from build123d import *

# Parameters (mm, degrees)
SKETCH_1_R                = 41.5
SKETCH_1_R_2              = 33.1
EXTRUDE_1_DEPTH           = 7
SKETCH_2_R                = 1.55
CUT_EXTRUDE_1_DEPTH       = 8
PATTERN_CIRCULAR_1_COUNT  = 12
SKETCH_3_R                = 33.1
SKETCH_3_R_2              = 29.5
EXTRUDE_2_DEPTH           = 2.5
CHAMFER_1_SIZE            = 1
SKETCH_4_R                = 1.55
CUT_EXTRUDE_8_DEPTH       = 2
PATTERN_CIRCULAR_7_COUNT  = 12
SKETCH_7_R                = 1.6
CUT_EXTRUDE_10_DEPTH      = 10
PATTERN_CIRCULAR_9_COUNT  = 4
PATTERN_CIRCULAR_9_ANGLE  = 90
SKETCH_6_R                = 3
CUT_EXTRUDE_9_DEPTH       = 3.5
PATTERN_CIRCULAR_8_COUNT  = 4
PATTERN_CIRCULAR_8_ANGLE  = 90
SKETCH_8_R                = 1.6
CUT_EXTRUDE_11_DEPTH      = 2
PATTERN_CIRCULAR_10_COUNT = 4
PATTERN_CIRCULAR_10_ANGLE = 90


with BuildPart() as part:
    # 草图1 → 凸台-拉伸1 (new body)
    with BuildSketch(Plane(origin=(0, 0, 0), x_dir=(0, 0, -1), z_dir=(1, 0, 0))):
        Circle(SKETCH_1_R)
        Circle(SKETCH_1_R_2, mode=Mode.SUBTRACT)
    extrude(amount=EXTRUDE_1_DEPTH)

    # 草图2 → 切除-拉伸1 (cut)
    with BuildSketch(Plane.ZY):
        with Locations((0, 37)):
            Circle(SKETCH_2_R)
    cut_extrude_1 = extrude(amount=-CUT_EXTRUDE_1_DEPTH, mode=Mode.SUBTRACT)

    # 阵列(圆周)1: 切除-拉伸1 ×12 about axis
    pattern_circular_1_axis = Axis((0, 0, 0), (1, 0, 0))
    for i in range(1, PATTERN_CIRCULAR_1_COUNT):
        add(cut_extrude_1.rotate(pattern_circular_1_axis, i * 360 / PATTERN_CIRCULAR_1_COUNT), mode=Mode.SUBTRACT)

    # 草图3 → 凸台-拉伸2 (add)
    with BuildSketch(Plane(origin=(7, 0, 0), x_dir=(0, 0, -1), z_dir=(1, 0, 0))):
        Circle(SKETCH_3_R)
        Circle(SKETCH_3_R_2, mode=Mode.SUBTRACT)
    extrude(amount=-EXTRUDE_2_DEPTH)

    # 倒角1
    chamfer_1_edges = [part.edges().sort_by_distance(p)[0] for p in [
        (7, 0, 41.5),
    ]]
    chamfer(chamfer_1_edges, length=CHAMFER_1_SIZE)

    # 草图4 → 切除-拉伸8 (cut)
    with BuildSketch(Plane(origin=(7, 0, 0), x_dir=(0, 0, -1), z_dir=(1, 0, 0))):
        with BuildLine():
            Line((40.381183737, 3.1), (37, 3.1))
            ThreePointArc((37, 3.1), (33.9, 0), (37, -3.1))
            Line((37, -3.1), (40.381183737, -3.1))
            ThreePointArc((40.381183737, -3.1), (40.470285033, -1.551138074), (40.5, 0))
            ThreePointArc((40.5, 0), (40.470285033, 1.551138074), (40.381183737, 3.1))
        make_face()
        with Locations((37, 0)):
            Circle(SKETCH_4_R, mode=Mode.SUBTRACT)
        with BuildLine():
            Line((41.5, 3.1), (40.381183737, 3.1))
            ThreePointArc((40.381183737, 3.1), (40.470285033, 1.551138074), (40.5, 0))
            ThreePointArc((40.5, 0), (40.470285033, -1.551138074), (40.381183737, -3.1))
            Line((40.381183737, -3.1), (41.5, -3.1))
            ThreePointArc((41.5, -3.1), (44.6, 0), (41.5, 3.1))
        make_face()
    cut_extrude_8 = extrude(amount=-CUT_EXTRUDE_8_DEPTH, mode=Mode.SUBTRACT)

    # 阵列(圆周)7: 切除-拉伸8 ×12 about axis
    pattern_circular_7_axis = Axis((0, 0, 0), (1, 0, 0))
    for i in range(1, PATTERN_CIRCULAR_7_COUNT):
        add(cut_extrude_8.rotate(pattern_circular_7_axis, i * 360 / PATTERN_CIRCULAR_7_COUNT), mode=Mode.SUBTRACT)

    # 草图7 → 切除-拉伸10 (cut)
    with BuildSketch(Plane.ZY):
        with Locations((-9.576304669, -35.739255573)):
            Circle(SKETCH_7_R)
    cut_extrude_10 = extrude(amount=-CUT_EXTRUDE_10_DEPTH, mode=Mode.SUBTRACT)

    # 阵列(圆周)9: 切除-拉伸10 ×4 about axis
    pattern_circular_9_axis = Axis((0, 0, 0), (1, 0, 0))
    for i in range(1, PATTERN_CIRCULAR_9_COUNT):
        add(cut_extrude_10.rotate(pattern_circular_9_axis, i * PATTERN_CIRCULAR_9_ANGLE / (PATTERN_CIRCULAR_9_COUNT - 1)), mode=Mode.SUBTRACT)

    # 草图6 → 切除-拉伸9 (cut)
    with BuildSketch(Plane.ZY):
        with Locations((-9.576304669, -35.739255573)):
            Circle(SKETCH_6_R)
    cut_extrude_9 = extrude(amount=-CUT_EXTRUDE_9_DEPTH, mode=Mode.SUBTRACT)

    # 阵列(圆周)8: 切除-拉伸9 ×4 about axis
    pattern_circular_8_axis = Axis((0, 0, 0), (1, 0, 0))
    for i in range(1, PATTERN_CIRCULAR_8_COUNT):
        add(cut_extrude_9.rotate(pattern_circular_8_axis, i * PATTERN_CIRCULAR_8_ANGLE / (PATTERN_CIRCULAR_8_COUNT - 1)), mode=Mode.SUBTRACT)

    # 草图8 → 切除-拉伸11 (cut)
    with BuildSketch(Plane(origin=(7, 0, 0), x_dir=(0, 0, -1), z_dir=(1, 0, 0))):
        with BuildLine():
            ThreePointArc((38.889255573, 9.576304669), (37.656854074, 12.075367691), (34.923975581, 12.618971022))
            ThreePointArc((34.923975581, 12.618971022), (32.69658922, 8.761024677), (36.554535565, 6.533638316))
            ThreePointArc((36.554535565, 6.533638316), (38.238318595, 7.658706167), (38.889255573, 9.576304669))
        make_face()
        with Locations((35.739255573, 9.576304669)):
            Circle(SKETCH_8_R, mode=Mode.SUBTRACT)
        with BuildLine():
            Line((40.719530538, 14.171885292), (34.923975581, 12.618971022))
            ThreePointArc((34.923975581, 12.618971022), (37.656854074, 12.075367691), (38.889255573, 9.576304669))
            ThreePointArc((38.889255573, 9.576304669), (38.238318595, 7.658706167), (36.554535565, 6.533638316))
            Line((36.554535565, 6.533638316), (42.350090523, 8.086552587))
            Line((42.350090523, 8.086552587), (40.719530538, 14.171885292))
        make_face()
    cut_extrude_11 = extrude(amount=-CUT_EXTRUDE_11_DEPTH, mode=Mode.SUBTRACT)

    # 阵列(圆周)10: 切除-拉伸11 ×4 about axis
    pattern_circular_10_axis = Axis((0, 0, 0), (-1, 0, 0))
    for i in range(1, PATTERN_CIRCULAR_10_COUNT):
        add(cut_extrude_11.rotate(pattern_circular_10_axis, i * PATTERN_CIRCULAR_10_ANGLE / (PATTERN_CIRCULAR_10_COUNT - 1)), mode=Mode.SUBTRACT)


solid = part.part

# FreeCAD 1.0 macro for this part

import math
import FreeCAD as App
import Part
import Sketcher
Q = App.Units.Quantity


def edges_at(feature, points):
    """Names of the edges that pass closest to the given points."""
    edges = feature.Shape.Edges
    near = lambda p: min(range(len(edges)), key=lambda i: edges[i].distToShape(Part.Vertex(*p))[0])
    return sorted({f"Edge{near(p) + 1}" for p in points})

doc = App.newDocument("Part")
body = doc.addObject("PartDesign::Body", "Body")

# Sketch on YZ plane
sketch1 = body.newObject("Sketcher::SketchObject", "Sketch")
sketch1.AttachmentSupport = (doc.getObject("YZ_Plane"), [""])
sketch1.MapMode = "FlatFace"
sketch1.addGeometry([
    Part.Circle(App.Vector(0, 0, 0), App.Vector(0, 0, 1), 42),
    Part.Circle(App.Vector(0, 0, 0), App.Vector(0, 0, 1), 33),
], False)
sketch1.addConstraint([
    Sketcher.Constraint("Coincident", 0, 3, -1, 1),
    Sketcher.Constraint("Coincident", 1, 3, -1, 1),
    Sketcher.Constraint("Diameter", 0, Q("83 mm")),
    Sketcher.Constraint("Diameter", 1, Q("66.2 mm")),
])
pad1 = body.newObject("PartDesign::Pad", "Pad")
pad1.Profile = sketch1
pad1.Length = 7

# Sketch on YZ plane
sketch2 = body.newObject("Sketcher::SketchObject", "Sketch001")
sketch2.AttachmentSupport = (doc.getObject("YZ_Plane"), [""])
sketch2.MapMode = "FlatFace"
sketch2.addGeometry(Part.Circle(App.Vector(37, 0, 0), App.Vector(0, 0, 1), 1.6), False)
sketch2.addConstraint([
    Sketcher.Constraint("PointOnObject", 0, 3, -1),
    Sketcher.Constraint("Diameter", 0, Q("3.1 mm")),
    Sketcher.Constraint("DistanceX", -1, 1, 0, 3, Q("37 mm")),
])
pocket1 = body.newObject("PartDesign::Pocket", "Pocket")
pocket1.Profile = sketch2
pocket1.Length = 8
pocket1.Reversed = True
doc.recompute()

polarpattern = body.newObject("PartDesign::PolarPattern", "PolarPattern")
polarpattern.Originals = [pocket1]
polarpattern.Axis = (doc.getObject("X_Axis"), [""])
polarpattern.Angle = 360
polarpattern.Occurrences = 12
body.Tip = polarpattern

# Sketch on YZ plane
sketch3 = body.newObject("Sketcher::SketchObject", "Sketch002")
sketch3.AttachmentSupport = (doc.getObject("YZ_Plane"), [""])
sketch3.MapMode = "FlatFace"
sketch3.AttachmentOffset = App.Placement(App.Vector(0, 0, 7), App.Rotation())
sketch3.addGeometry([
    Part.Circle(App.Vector(0, 0, 0), App.Vector(0, 0, 1), 33),
    Part.Circle(App.Vector(0, 0, 0), App.Vector(0, 0, 1), 30),
], False)
sketch3.addConstraint([
    Sketcher.Constraint("Coincident", 0, 3, -1, 1),
    Sketcher.Constraint("Coincident", 1, 3, -1, 1),
    Sketcher.Constraint("Diameter", 1, Q("59 mm")),
    Sketcher.Constraint("Diameter", 0, Q("66.2 mm")),
])
pad2 = body.newObject("PartDesign::Pad", "Pad001")
pad2.Profile = sketch3
pad2.Length = 2.5
pad2.Reversed = True
doc.recompute()

chamfer = body.newObject("PartDesign::Chamfer", "Chamfer")
chamfer.Base = (pad2, edges_at(pad2, [(7, 0, 41.5)]))
chamfer.Size = 1

# Sketch on YZ plane
sketch4 = body.newObject("Sketcher::SketchObject", "Sketch003")
sketch4.AttachmentSupport = (doc.getObject("YZ_Plane"), [""])
sketch4.MapMode = "FlatFace"
sketch4.AttachmentOffset = App.Placement(App.Vector(0, 0, 7), App.Rotation())
sketch4.addGeometry([
    Part.ArcOfCircle(Part.Circle(App.Vector(0, -37, 0), App.Vector(0, 0, 1), 3.1), math.radians(0), math.radians(180)),  # 0
    Part.LineSegment(App.Vector(-3.1, -37, 0), App.Vector(-3.1, -41.5, 0)),  # 1
    Part.ArcOfCircle(Part.Circle(App.Vector(0, -41.5, 0), App.Vector(0, 0, 1), 3.1), math.radians(180), math.radians(360)),  # 2
    Part.LineSegment(App.Vector(3.1, -41.5, 0), App.Vector(3.1, -37, 0)),  # 3
    Part.Circle(App.Vector(0, -37, 0), App.Vector(0, 0, 1), 1.6),  # 4
], False)
sketch4.addConstraint([
    Sketcher.Constraint("Tangent", 0, 2, 1, 1),
    Sketcher.Constraint("Tangent", 1, 2, 2, 1),
    Sketcher.Constraint("Tangent", 2, 2, 3, 1),
    Sketcher.Constraint("Tangent", 3, 2, 0, 1),
    Sketcher.Constraint("Vertical", 1),
    Sketcher.Constraint("Vertical", 3),
    Sketcher.Constraint("Coincident", 4, 3, 0, 3),
    Sketcher.Constraint("PointOnObject", 0, 3, -2),
    Sketcher.Constraint("Diameter", 4, Q("3.1 mm")),
    Sketcher.Constraint("Radius", 0, Q("3.1 mm")),
    Sketcher.Constraint("DistanceY", 1, 2, 1, 1, Q("4.5 mm")),
    Sketcher.Constraint("DistanceY", 0, 3, -1, 1, Q("37 mm")),
])
pocket2 = body.newObject("PartDesign::Pocket", "Pocket001")
pocket2.Profile = sketch4
pocket2.Length = 2
doc.recompute()

polarpattern2 = body.newObject("PartDesign::PolarPattern", "PolarPattern001")
polarpattern2.Originals = [pocket2]
polarpattern2.Axis = (doc.getObject("X_Axis"), [""])
polarpattern2.Angle = 360
polarpattern2.Occurrences = 12
body.Tip = polarpattern2

# Sketch on YZ plane
sketch5 = body.newObject("Sketcher::SketchObject", "Sketch004")
sketch5.AttachmentSupport = (doc.getObject("YZ_Plane"), [""])
sketch5.MapMode = "FlatFace"
sketch5.addGeometry(Part.Circle(App.Vector(-35.7, -9.6, 0), App.Vector(0, 0, 1), 1.6), False)
sketch5.addConstraint([
    Sketcher.Constraint("Diameter", 0, Q("3.2 mm")),
    Sketcher.Constraint("DistanceX", 0, 3, -1, 1, Q("35.739256 mm")),
    Sketcher.Constraint("DistanceY", 0, 3, -1, 1, Q("9.576305 mm")),
])
pocket3 = body.newObject("PartDesign::Pocket", "Pocket002")
pocket3.Profile = sketch5
pocket3.Length = 10
pocket3.Reversed = True
doc.recompute()

polarpattern3 = body.newObject("PartDesign::PolarPattern", "PolarPattern002")
polarpattern3.Originals = [pocket3]
polarpattern3.Axis = (doc.getObject("X_Axis"), [""])
polarpattern3.Angle = 90
polarpattern3.Occurrences = 4
body.Tip = polarpattern3

# Sketch on YZ plane
sketch6 = body.newObject("Sketcher::SketchObject", "Sketch005")
sketch6.AttachmentSupport = (doc.getObject("YZ_Plane"), [""])
sketch6.MapMode = "FlatFace"
sketch6.addGeometry(Part.Circle(App.Vector(-35.7, -9.6, 0), App.Vector(0, 0, 1), 3), False)
sketch6.addConstraint([
    Sketcher.Constraint("Diameter", 0, Q("6 mm")),
    Sketcher.Constraint("DistanceX", 0, 3, -1, 1, Q("35.739256 mm")),
    Sketcher.Constraint("DistanceY", 0, 3, -1, 1, Q("9.576305 mm")),
])
pocket4 = body.newObject("PartDesign::Pocket", "Pocket003")
pocket4.Profile = sketch6
pocket4.Length = 3.5
pocket4.Reversed = True
doc.recompute()

polarpattern4 = body.newObject("PartDesign::PolarPattern", "PolarPattern003")
polarpattern4.Originals = [pocket4]
polarpattern4.Axis = (doc.getObject("X_Axis"), [""])
polarpattern4.Angle = 90
polarpattern4.Occurrences = 4
body.Tip = polarpattern4

# Sketch on YZ plane
sketch7 = body.newObject("Sketcher::SketchObject", "Sketch006")
sketch7.AttachmentSupport = (doc.getObject("YZ_Plane"), [""])
sketch7.MapMode = "FlatFace"
sketch7.AttachmentOffset = App.Placement(App.Vector(0, 0, 7), App.Rotation())
sketch7.addGeometry([
    Part.ArcOfCircle(Part.Circle(App.Vector(9.6, -35.7, 0), App.Vector(0, 0, 1), 3.1), math.radians(15), math.radians(195)),  # 0
    Part.LineSegment(App.Vector(6.5, -36.6, 0), App.Vector(8.1, -42.4, 0)),  # 1
    Part.LineSegment(App.Vector(8.1, -42.4, 0), App.Vector(14.2, -40.7, 0)),  # 2
    Part.LineSegment(App.Vector(14.2, -40.7, 0), App.Vector(12.6, -34.9, 0)),  # 3
    Part.Circle(App.Vector(9.6, -35.7, 0), App.Vector(0, 0, 1), 1.6),  # 4
], False)
sketch7.addConstraint([
    Sketcher.Constraint("Tangent", 0, 2, 1, 1),
    Sketcher.Constraint("Coincident", 1, 2, 2, 1),
    Sketcher.Constraint("Coincident", 2, 2, 3, 1),
    Sketcher.Constraint("Tangent", 3, 2, 0, 1),
    Sketcher.Constraint("Coincident", 4, 3, 0, 3),
    Sketcher.Constraint("Perpendicular", 1, 2),
    Sketcher.Constraint("Perpendicular", 2, 3),
    Sketcher.Constraint("Diameter", 4, Q("3.2 mm")),
    Sketcher.Constraint("Angle", 1, Q("-75 deg")),
    Sketcher.Constraint("Radius", 0, Q("3.15 mm")),
    Sketcher.Constraint("Distance", 1, Q("6 mm")),
    Sketcher.Constraint("DistanceX", -1, 1, 0, 2, Q("6.533638 mm")),
    Sketcher.Constraint("DistanceY", 1, 2, -1, 1, Q("42.350091 mm")),
])
pocket5 = body.newObject("PartDesign::Pocket", "Pocket004")
pocket5.Profile = sketch7
pocket5.Length = 2
doc.recompute()

polarpattern5 = body.newObject("PartDesign::PolarPattern", "PolarPattern004")
polarpattern5.Originals = [pocket5]
polarpattern5.Axis = (doc.getObject("X_Axis"), [""])
polarpattern5.Angle = 90
polarpattern5.Occurrences = 4
polarpattern5.Reversed = True
body.Tip = polarpattern5

doc.recompute()
